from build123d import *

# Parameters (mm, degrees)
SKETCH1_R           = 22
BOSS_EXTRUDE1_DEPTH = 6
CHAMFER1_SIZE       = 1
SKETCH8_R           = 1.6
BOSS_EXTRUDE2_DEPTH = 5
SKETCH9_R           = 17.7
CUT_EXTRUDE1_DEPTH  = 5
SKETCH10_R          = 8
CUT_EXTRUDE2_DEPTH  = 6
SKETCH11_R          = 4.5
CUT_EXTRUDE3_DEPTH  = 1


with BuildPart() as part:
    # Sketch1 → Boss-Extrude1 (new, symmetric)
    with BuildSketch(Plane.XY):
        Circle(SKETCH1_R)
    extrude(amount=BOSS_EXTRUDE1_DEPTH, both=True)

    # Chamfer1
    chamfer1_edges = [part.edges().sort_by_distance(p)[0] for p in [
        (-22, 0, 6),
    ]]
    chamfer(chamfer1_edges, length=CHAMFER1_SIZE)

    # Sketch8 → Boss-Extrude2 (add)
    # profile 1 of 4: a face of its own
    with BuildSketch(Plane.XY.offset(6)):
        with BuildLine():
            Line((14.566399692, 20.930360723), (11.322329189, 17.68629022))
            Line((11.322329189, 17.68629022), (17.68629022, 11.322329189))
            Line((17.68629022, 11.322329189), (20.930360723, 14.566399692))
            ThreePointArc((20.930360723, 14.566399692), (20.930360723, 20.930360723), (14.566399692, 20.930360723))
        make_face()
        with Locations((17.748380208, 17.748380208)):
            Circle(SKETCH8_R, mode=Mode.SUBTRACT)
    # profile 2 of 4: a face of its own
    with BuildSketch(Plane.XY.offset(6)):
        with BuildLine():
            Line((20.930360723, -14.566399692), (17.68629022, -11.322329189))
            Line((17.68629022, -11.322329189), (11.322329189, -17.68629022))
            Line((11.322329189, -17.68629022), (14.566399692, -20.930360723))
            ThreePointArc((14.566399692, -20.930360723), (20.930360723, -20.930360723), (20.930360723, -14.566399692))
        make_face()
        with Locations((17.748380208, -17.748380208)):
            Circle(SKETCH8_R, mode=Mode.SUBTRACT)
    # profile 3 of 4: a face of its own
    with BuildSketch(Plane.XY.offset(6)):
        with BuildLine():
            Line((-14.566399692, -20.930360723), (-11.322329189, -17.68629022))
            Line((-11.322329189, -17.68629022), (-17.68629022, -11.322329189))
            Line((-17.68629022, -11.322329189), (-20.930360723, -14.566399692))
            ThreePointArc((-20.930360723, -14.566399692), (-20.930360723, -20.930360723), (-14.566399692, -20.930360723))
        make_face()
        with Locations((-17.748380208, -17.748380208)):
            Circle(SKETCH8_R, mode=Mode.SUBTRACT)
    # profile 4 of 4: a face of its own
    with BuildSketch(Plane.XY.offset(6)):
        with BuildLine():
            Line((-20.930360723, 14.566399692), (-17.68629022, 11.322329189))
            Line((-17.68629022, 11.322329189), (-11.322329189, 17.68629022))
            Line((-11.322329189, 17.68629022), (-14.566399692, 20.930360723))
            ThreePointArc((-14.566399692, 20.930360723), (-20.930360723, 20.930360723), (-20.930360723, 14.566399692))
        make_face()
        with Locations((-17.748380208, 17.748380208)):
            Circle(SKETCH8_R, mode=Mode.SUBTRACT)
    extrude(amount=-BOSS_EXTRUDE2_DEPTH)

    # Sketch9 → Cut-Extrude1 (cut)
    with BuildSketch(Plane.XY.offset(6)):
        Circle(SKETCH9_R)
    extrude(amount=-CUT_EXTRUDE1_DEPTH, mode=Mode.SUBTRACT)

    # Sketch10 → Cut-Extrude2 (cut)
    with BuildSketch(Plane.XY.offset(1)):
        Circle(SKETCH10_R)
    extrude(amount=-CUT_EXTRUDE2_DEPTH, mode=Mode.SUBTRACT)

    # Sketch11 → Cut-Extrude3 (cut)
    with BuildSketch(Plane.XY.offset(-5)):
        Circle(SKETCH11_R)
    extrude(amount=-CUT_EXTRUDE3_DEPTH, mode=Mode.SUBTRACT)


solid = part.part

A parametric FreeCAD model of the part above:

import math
import FreeCAD as App
import Part
import Sketcher
from FreeCAD import Vector


def edges_at(feature, points):
    """Names of the edges that pass closest to the given points."""
    edges = feature.Shape.Edges
    near = lambda p: min(range(len(edges)), key=lambda i: edges[i].distToShape(Part.Vertex(*p))[0])
    return sorted({f"Edge{near(p) + 1}" for p in points})

doc = App.newDocument("Part")
params = doc.addObject("Spreadsheet::Sheet", "Params")
for row, (alias, value) in enumerate([
    ("sketch1_diameter", "44 mm"),
    ("pad1_length", "12 mm"),
    ("chamfer_size", "1 mm"),
    ("sketch2_diameter", "3.2 mm"),
    ("sketch2_radius", "4.5 mm"),
    ("pad2_length", "5 mm"),
    ("sketch3_diameter", "35.4 mm"),
    ("pocket1_length", "5 mm"),
    ("sketch4_diameter", "16 mm"),
    ("pocket2_length", "6 mm"),
    ("sketch5_diameter", "9 mm"),
    ("pocket3_length", "1 mm"),
], start=1):
    params.set(f"A{row}", alias)
    params.set(f"B{row}", "=" + value)
    params.setAlias(f"B{row}", alias)

body = doc.addObject("PartDesign::Body", "Body")

sketch1 = doc.addObject("Sketcher::SketchObject", "Sketch")
body.addObject(sketch1)
sketch1.AttachmentSupport = (doc.XY_Plane, [""])
sketch1.MapMode = "FlatFace"
sketch1.addGeometry(Part.Circle(Vector(0, 0, 0), Vector(0, 0, 1), 22), False)
sketch1.addConstraint(Sketcher.Constraint("Coincident", 0, 3, -1, 1))
sketch1.addConstraint(Sketcher.Constraint("Diameter", 0, 44.0))
sketch1.setExpression("Constraints[1]", "Params.sketch1_diameter")
pad1 = doc.addObject("PartDesign::Pad", "Pad")
body.addObject(pad1)
pad1.Profile = sketch1
pad1.setExpression("Length", "Params.pad1_length")
pad1.Midplane = True
doc.recompute()

chamfer = doc.addObject("PartDesign::Chamfer", "Chamfer")
body.addObject(chamfer)
chamfer.Base = (pad1, edges_at(pad1, [(-22, 0, 6)]))
chamfer.setExpression("Size", "Params.chamfer_size")

sketch2 = doc.addObject("Sketcher::SketchObject", "Sketch001")
body.addObject(sketch2)
sketch2.AttachmentSupport = (doc.XY_Plane, [""])
sketch2.MapMode = "FlatFace"
sketch2.AttachmentOffset = App.Placement(Vector(0, 0, 6), App.Rotation())
sketch2.addGeometry(Part.LineSegment(Vector(14.6, 20.9, 0), Vector(11.3, 17.7, 0)), False)
sketch2.addGeometry(Part.LineSegment(Vector(11.3, 17.7, 0), Vector(17.7, 11.3, 0)), False)
sketch2.addGeometry(Part.LineSegment(Vector(17.7, 11.3, 0), Vector(20.9, 14.6, 0)), False)
sketch2.addGeometry(Part.ArcOfCircle(Part.Circle(Vector(17.7, 17.7, 0), Vector(0, 0, 1), 4.5), math.radians(-45), math.radians(135)), False)
sketch2.addGeometry(Part.Circle(Vector(17.7, 17.7, 0), Vector(0, 0, 1), 1.6), False)
sketch2.addGeometry(Part.LineSegment(Vector(20.9, -14.6, 0), Vector(17.7, -11.3, 0)), False)
sketch2.addGeometry(Part.LineSegment(Vector(17.7, -11.3, 0), Vector(11.3, -17.7, 0)), False)
sketch2.addGeometry(Part.LineSegment(Vector(11.3, -17.7, 0), Vector(14.6, -20.9, 0)), False)
sketch2.addGeometry(Part.ArcOfCircle(Part.Circle(Vector(17.7, -17.7, 0), Vector(0, 0, 1), 4.5), math.radians(-135), math.radians(45)), False)
sketch2.addGeometry(Part.Circle(Vector(17.7, -17.7, 0), Vector(0, 0, 1), 1.6), False)
sketch2.addGeometry(Part.LineSegment(Vector(-14.6, -20.9, 0), Vector(-11.3, -17.7, 0)), False)
sketch2.addGeometry(Part.LineSegment(Vector(-11.3, -17.7, 0), Vector(-17.7, -11.3, 0)), False)
sketch2.addGeometry(Part.LineSegment(Vector(-17.7, -11.3, 0), Vector(-20.9, -14.6, 0)), False)
sketch2.addGeometry(Part.ArcOfCircle(Part.Circle(Vector(-17.7, -17.7, 0), Vector(0, 0, 1), 4.5), math.radians(135), math.radians(315)), False)
sketch2.addGeometry(Part.Circle(Vector(-17.7, -17.7, 0), Vector(0, 0, 1), 1.6), False)
sketch2.addGeometry(Part.LineSegment(Vector(-20.9, 14.6, 0), Vector(-17.7, 11.3, 0)), False)
sketch2.addGeometry(Part.LineSegment(Vector(-17.7, 11.3, 0), Vector(-11.3, 17.7, 0)), False)
sketch2.addGeometry(Part.LineSegment(Vector(-11.3, 17.7, 0), Vector(-14.6, 20.9, 0)), False)
sketch2.addGeometry(Part.ArcOfCircle(Part.Circle(Vector(-17.7, 17.7, 0), Vector(0, 0, 1), 4.5), math.radians(45), math.radians(225)), False)
sketch2.addGeometry(Part.Circle(Vector(-17.7, 17.7, 0), Vector(0, 0, 1), 1.6), False)
sketch2.addConstraint(Sketcher.Constraint("Coincident", 0, 2, 1, 1))
sketch2.addConstraint(Sketcher.Constraint("Coincident", 1, 2, 2, 1))
sketch2.addConstraint(Sketcher.Constraint("Tangent", 2, 2, 3, 1))
sketch2.addConstraint(Sketcher.Constraint("Tangent", 3, 2, 0, 1))
sketch2.addConstraint(Sketcher.Constraint("Coincident", 5, 2, 6, 1))
sketch2.addConstraint(Sketcher.Constraint("Coincident", 6, 2, 7, 1))
sketch2.addConstraint(Sketcher.Constraint("Tangent", 7, 2, 8, 1))
sketch2.addConstraint(Sketcher.Constraint("Tangent", 8, 2, 5, 1))
sketch2.addConstraint(Sketcher.Constraint("Coincident", 10, 2, 11, 1))
sketch2.addConstraint(Sketcher.Constraint("Coincident", 11, 2, 12, 1))
sketch2.addConstraint(Sketcher.Constraint("Tangent", 12, 2, 13, 1))
sketch2.addConstraint(Sketcher.Constraint("Tangent", 13, 2, 10, 1))
sketch2.addConstraint(Sketcher.Constraint("Coincident", 15, 2, 16, 1))
sketch2.addConstraint(Sketcher.Constraint("Coincident", 16, 2, 17, 1))
sketch2.addConstraint(Sketcher.Constraint("Tangent", 17, 2, 18, 1))
sketch2.addConstraint(Sketcher.Constraint("Tangent", 18, 2, 15, 1))
sketch2.addConstraint(Sketcher.Constraint("Coincident", 4, 3, 3, 3))
sketch2.addConstraint(Sketcher.Constraint("Coincident", 9, 3, 8, 3))
sketch2.addConstraint(Sketcher.Constraint("Coincident", 14, 3, 13, 3))
sketch2.addConstraint(Sketcher.Constraint("Coincident", 19, 3, 18, 3))
sketch2.addConstraint(Sketcher.Constraint("Equal", 3, 8))
sketch2.addConstraint(Sketcher.Constraint("Equal", 4, 9))
sketch2.addConstraint(Sketcher.Constraint("Equal", 8, 13))
sketch2.addConstraint(Sketcher.Constraint("Equal", 9, 14))
sketch2.addConstraint(Sketcher.Constraint("Equal", 13, 18))
sketch2.addConstraint(Sketcher.Constraint("Equal", 14, 19))
sketch2.addConstraint(Sketcher.Constraint("Symmetric", 3, 3, 13, 3, -1, 1))
sketch2.addConstraint(Sketcher.Constraint("Symmetric", 8, 3, 18, 3, -1, 1))
sketch2.addConstraint(Sketcher.Constraint("Symmetric", 0, 2, 10, 2, -1, 1))
sketch2.addConstraint(Sketcher.Constraint("Symmetric", 1, 2, 11, 2, -1, 1))
sketch2.addConstraint(Sketcher.Constraint("Symmetric", 5, 2, 15, 2, -1, 1))
sketch2.addConstraint(Sketcher.Constraint("Symmetric", 6, 2, 16, 2, -1, 1))
sketch2.addConstraint(Sketcher.Constraint("Symmetric", 8, 3, 13, 3, -2))
sketch2.addConstraint(Sketcher.Constraint("Symmetric", 6, 2, 10, 2, -2))
sketch2.addConstraint(Sketcher.Constraint("Symmetric", 5, 2, 11, 2, -2))
sketch2.addConstraint(Sketcher.Constraint("Perpendicular", 0, 1))
sketch2.addConstraint(Sketcher.Constraint("Perpendicular", 1, 2))
sketch2.addConstraint(Sketcher.Constraint("Perpendicular", 2, 5))
sketch2.addConstraint(Sketcher.Constraint("Diameter", 4, 3.2))
sketch2.addConstraint(Sketcher.Constraint("Radius", 3, 4.5))
sketch2.addConstraint(Sketcher.Constraint("DistanceY", -1, 1, 2, 2, 14.5664))
sketch2.addConstraint(Sketcher.Constraint("DistanceX", -1, 1, 3, 2, 14.5664))
sketch2.addConstraint(Sketcher.Constraint("Distance", 0, 4.587809))
sketch2.setExpression("Constraints[38]", "Params.sketch2_diameter")
sketch2.setExpression("Constraints[39]", "Params.sketch2_radius")
pad2 = doc.addObject("PartDesign::Pad", "Pad001")
body.addObject(pad2)
pad2.Profile = sketch2
pad2.setExpression("Length", "Params.pad2_length")
pad2.Reversed = True

sketch3 = doc.addObject("Sketcher::SketchObject", "Sketch002")
body.addObject(sketch3)
sketch3.AttachmentSupport = (doc.XY_Plane, [""])
sketch3.MapMode = "FlatFace"
sketch3.AttachmentOffset = App.Placement(Vector(0, 0, 6), App.Rotation())
sketch3.addGeometry(Part.Circle(Vector(0, 0, 0), Vector(0, 0, 1), 18), False)
sketch3.addConstraint(Sketcher.Constraint("Coincident", 0, 3, -1, 1))
sketch3.addConstraint(Sketcher.Constraint("Diameter", 0, 35.4))
sketch3.setExpression("Constraints[1]", "Params.sketch3_diameter")
pocket1 = doc.addObject("PartDesign::Pocket", "Pocket")
body.addObject(pocket1)
pocket1.Profile = sketch3
pocket1.setExpression("Length", "Params.pocket1_length")

sketch4 = doc.addObject("Sketcher::SketchObject", "Sketch003")
body.addObject(sketch4)
sketch4.AttachmentSupport = (doc.XY_Plane, [""])
sketch4.MapMode = "FlatFace"
sketch4.AttachmentOffset = App.Placement(Vector(0, 0, 1), App.Rotation())
sketch4.addGeometry(Part.Circle(Vector(0, 0, 0), Vector(0, 0, 1), 8), False)
sketch4.addConstraint(Sketcher.Constraint("Coincident", 0, 3, -1, 1))
sketch4.addConstraint(Sketcher.Constraint("Diameter", 0, 16.0))
sketch4.setExpression("Constraints[1]", "Params.sketch4_diameter")
pocket2 = doc.addObject("PartDesign::Pocket", "Pocket001")
body.addObject(pocket2)
pocket2.Profile = sketch4
pocket2.setExpression("Length", "Params.pocket2_length")

sketch5 = doc.addObject("Sketcher::SketchObject", "Sketch004")
body.addObject(sketch5)
sketch5.AttachmentSupport = (doc.XY_Plane, [""])
sketch5.MapMode = "FlatFace"
sketch5.AttachmentOffset = App.Placement(Vector(0, 0, -5), App.Rotation())
sketch5.addGeometry(Part.Circle(Vector(0, 0, 0), Vector(0, 0, 1), 4.5), False)
sketch5.addConstraint(Sketcher.Constraint("Coincident", 0, 3, -1, 1))
sketch5.addConstraint(Sketcher.Constraint("Diameter", 0, 9.0))
sketch5.setExpression("Constraints[1]", "Params.sketch5_diameter")
pocket3 = doc.addObject("PartDesign::Pocket", "Pocket002")
body.addObject(pocket3)
pocket3.Profile = sketch5
pocket3.setExpression("Length", "Params.pocket3_length")

doc.recompute()
